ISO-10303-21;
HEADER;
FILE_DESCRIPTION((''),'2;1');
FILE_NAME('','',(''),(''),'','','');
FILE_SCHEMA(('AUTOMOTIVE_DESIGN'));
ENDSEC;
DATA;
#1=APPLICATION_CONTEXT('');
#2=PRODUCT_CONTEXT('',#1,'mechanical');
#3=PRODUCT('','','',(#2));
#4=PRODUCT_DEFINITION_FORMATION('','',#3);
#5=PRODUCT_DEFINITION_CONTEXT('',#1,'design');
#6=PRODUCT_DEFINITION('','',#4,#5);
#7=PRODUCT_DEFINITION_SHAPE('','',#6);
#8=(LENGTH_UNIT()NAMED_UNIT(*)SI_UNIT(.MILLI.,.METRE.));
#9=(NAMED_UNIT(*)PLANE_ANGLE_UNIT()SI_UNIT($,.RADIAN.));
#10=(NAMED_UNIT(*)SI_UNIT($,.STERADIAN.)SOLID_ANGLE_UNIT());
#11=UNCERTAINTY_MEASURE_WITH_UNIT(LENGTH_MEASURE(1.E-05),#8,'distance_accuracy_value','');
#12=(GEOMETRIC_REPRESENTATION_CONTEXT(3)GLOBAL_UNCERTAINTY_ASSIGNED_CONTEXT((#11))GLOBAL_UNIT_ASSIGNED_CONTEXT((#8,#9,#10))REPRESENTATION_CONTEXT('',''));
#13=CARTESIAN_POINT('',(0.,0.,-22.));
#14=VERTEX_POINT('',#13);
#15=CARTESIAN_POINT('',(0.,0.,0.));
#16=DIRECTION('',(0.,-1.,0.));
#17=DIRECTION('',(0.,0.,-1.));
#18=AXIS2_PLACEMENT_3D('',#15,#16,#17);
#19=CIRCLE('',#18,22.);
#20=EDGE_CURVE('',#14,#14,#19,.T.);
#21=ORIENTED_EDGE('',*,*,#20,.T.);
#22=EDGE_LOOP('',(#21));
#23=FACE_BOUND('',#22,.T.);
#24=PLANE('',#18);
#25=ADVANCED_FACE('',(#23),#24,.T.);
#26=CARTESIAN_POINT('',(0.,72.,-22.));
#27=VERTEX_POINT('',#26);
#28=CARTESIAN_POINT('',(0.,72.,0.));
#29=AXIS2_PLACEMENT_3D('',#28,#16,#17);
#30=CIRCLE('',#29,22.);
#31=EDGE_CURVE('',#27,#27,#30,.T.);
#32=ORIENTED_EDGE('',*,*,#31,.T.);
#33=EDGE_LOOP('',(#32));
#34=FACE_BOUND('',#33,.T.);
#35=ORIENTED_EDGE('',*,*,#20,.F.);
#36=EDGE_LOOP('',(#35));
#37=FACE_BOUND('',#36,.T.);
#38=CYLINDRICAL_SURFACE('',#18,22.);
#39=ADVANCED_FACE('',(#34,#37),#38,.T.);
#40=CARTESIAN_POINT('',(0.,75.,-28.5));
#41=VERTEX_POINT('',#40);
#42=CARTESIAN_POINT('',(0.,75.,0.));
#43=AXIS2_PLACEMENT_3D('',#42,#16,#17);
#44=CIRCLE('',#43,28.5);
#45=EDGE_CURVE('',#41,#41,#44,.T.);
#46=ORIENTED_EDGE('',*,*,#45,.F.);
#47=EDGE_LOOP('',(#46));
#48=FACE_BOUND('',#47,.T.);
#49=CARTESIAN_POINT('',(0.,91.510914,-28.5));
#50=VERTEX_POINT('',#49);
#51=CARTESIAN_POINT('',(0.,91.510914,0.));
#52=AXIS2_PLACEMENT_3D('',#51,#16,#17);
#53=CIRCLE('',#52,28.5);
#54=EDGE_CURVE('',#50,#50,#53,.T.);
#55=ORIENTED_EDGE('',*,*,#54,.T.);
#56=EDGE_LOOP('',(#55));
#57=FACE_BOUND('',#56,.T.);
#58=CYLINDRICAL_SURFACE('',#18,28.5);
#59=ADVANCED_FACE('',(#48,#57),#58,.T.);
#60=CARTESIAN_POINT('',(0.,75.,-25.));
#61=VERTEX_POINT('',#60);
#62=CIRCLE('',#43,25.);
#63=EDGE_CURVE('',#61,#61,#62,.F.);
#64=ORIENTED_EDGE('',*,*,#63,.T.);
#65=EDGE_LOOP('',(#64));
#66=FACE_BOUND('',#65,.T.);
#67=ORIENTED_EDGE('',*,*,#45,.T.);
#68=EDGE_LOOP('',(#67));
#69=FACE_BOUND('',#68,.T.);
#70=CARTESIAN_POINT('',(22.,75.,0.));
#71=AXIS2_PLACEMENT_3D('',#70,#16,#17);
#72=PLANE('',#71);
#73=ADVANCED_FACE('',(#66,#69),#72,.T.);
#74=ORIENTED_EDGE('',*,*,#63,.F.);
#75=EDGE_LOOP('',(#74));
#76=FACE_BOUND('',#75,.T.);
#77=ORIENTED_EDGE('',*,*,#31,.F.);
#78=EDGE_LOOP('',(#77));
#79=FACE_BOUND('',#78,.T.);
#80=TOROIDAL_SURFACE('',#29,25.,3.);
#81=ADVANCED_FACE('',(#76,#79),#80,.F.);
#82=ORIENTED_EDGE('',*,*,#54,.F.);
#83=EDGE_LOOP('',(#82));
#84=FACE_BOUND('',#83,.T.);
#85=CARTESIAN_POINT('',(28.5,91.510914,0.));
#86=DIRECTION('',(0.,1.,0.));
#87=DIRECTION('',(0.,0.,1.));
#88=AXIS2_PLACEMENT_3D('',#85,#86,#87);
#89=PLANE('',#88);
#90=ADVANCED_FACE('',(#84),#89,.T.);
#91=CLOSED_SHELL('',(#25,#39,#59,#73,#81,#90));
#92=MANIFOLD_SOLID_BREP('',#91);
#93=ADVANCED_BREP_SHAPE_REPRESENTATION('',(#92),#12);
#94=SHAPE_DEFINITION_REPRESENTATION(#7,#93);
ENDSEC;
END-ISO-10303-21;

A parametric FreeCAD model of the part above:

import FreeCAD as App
import Part
import Sketcher

V = App.Vector
Q = App.Units.Quantity


def edges_at(feature, points):
    """Names of the edges that pass closest to the given points."""
    edges = feature.Shape.Edges
    near = lambda p: min(range(len(edges)), key=lambda i: edges[i].distToShape(Part.Vertex(*p))[0])
    return sorted({f"Edge{near(p) + 1}" for p in points})


def add_polygon(sketch, points):
    """Adds a closed chain of lines whose ends are joined by coincident constraints."""
    first, n = sketch.GeometryCount, len(points)
    for a, b in zip(points, points[1:] + points[:1]):
        sketch.addGeometry(Part.LineSegment(App.Vector(*a, 0), App.Vector(*b, 0)), False)
    for i in range(n):
        sketch.addConstraint(Sketcher.Constraint("Coincident", first + i, 2, first + (i + 1) % n, 1))

doc = App.newDocument("Part")
body = doc.addObject("PartDesign::Body", "Body")

# Sketch on XY plane
sketch1 = doc.addObject("Sketcher::SketchObject", "Sketch")
body.addObject(sketch1)
sketch1.AttachmentSupport = (doc.XY_Plane, [""])
sketch1.MapMode = "FlatFace"
add_polygon(sketch1, [(0, 0), (22, 0), (22, 75), (28, 75), (28, 92), (0, 92)])  # lines 0-5
sketch1.addConstraint([
    Sketcher.Constraint("Horizontal", 0),
    Sketcher.Constraint("Vertical", 1),
    Sketcher.Constraint("Horizontal", 2),
    Sketcher.Constraint("Vertical", 3),
    Sketcher.Constraint("Horizontal", 4),
    Sketcher.Constraint("Vertical", 5),
    Sketcher.Constraint("Coincident", 5, 2, -1, 1),
    Sketcher.Constraint("DistanceX", 0, 1, 0, 2, Q("22 mm")),
    Sketcher.Constraint("DistanceY", 1, 1, 1, 2, Q("75 mm")),
    Sketcher.Constraint("DistanceX", 2, 1, 2, 2, Q("6.5 mm")),
    Sketcher.Constraint("DistanceY", 3, 1, 3, 2, Q("16.510914 mm")),
])
revolution = doc.addObject("PartDesign::Revolution", "Revolution")
body.addObject(revolution)
revolution.Profile = sketch1
revolution.ReferenceAxis = (sketch1, ["V_Axis"])
revolution.Angle = 360
doc.recompute()

fillet = doc.addObject("PartDesign::Fillet", "Fillet")
body.addObject(fillet)
fillet.Base = (revolution, edges_at(revolution, [(0, 75, 22)]))
fillet.Radius = 3

doc.recompute()
